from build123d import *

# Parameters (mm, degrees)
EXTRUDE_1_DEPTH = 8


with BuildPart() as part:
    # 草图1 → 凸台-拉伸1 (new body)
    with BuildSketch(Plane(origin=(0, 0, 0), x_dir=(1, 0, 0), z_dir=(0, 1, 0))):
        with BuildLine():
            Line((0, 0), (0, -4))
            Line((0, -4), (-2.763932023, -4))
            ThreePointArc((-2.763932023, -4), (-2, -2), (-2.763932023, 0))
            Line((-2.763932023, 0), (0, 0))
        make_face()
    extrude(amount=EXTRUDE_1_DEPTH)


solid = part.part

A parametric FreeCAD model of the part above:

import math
import FreeCAD as App
import Part
import Sketcher
from FreeCAD import Vector

doc = App.newDocument("Part")
body = doc.addObject("PartDesign::Body", "Body")

# Sketch on XZ plane
sketch1 = body.newObject("Sketcher::SketchObject", "Sketch")
sketch1.AttachmentSupport = (doc.getObject("XZ_Plane"), [""])
sketch1.MapMode = "FlatFace"
sketch1.addGeometry([
    Part.LineSegment(Vector(0, 4, 0), Vector(0, 0, 0)),
    Part.LineSegment(Vector(0, 0, 0), Vector(-2.763932, 0, 0)),
    Part.ArcOfCircle(Part.Circle(Vector(-5, 2, 0), Vector(0, 0, 1), 3), math.radians(-41.810315), math.radians(41.810315)),
    Part.LineSegment(Vector(-2.763932, 4, 0), Vector(0, 4, 0)),
], False)
sketch1.addConstraint([
    Sketcher.Constraint("Coincident", 0, 2, 1, 1),
    Sketcher.Constraint("Coincident", 1, 2, 2, 1),
    Sketcher.Constraint("Coincident", 2, 2, 3, 1),
    Sketcher.Constraint("Coincident", 3, 2, 0, 1),
    Sketcher.Constraint("Vertical", 0),
    Sketcher.Constraint("Horizontal", 1),
    Sketcher.Constraint("Horizontal", 3),
    Sketcher.Constraint("Coincident", 0, 2, -1, 1),
    Sketcher.Constraint("Vertical", 1, 2, 2, 2),
    Sketcher.Constraint("Radius", 2, 3.0),
    Sketcher.Constraint("DistanceY", 0, 2, 0, 1, 4.0),
    Sketcher.Constraint("DistanceX", 2, 3, -1, 1, 5.0),
])
pad1 = body.newObject("PartDesign::Pad", "Pad")
pad1.Profile = sketch1
pad1.Length = 8
pad1.Reversed = True

doc.recompute()
